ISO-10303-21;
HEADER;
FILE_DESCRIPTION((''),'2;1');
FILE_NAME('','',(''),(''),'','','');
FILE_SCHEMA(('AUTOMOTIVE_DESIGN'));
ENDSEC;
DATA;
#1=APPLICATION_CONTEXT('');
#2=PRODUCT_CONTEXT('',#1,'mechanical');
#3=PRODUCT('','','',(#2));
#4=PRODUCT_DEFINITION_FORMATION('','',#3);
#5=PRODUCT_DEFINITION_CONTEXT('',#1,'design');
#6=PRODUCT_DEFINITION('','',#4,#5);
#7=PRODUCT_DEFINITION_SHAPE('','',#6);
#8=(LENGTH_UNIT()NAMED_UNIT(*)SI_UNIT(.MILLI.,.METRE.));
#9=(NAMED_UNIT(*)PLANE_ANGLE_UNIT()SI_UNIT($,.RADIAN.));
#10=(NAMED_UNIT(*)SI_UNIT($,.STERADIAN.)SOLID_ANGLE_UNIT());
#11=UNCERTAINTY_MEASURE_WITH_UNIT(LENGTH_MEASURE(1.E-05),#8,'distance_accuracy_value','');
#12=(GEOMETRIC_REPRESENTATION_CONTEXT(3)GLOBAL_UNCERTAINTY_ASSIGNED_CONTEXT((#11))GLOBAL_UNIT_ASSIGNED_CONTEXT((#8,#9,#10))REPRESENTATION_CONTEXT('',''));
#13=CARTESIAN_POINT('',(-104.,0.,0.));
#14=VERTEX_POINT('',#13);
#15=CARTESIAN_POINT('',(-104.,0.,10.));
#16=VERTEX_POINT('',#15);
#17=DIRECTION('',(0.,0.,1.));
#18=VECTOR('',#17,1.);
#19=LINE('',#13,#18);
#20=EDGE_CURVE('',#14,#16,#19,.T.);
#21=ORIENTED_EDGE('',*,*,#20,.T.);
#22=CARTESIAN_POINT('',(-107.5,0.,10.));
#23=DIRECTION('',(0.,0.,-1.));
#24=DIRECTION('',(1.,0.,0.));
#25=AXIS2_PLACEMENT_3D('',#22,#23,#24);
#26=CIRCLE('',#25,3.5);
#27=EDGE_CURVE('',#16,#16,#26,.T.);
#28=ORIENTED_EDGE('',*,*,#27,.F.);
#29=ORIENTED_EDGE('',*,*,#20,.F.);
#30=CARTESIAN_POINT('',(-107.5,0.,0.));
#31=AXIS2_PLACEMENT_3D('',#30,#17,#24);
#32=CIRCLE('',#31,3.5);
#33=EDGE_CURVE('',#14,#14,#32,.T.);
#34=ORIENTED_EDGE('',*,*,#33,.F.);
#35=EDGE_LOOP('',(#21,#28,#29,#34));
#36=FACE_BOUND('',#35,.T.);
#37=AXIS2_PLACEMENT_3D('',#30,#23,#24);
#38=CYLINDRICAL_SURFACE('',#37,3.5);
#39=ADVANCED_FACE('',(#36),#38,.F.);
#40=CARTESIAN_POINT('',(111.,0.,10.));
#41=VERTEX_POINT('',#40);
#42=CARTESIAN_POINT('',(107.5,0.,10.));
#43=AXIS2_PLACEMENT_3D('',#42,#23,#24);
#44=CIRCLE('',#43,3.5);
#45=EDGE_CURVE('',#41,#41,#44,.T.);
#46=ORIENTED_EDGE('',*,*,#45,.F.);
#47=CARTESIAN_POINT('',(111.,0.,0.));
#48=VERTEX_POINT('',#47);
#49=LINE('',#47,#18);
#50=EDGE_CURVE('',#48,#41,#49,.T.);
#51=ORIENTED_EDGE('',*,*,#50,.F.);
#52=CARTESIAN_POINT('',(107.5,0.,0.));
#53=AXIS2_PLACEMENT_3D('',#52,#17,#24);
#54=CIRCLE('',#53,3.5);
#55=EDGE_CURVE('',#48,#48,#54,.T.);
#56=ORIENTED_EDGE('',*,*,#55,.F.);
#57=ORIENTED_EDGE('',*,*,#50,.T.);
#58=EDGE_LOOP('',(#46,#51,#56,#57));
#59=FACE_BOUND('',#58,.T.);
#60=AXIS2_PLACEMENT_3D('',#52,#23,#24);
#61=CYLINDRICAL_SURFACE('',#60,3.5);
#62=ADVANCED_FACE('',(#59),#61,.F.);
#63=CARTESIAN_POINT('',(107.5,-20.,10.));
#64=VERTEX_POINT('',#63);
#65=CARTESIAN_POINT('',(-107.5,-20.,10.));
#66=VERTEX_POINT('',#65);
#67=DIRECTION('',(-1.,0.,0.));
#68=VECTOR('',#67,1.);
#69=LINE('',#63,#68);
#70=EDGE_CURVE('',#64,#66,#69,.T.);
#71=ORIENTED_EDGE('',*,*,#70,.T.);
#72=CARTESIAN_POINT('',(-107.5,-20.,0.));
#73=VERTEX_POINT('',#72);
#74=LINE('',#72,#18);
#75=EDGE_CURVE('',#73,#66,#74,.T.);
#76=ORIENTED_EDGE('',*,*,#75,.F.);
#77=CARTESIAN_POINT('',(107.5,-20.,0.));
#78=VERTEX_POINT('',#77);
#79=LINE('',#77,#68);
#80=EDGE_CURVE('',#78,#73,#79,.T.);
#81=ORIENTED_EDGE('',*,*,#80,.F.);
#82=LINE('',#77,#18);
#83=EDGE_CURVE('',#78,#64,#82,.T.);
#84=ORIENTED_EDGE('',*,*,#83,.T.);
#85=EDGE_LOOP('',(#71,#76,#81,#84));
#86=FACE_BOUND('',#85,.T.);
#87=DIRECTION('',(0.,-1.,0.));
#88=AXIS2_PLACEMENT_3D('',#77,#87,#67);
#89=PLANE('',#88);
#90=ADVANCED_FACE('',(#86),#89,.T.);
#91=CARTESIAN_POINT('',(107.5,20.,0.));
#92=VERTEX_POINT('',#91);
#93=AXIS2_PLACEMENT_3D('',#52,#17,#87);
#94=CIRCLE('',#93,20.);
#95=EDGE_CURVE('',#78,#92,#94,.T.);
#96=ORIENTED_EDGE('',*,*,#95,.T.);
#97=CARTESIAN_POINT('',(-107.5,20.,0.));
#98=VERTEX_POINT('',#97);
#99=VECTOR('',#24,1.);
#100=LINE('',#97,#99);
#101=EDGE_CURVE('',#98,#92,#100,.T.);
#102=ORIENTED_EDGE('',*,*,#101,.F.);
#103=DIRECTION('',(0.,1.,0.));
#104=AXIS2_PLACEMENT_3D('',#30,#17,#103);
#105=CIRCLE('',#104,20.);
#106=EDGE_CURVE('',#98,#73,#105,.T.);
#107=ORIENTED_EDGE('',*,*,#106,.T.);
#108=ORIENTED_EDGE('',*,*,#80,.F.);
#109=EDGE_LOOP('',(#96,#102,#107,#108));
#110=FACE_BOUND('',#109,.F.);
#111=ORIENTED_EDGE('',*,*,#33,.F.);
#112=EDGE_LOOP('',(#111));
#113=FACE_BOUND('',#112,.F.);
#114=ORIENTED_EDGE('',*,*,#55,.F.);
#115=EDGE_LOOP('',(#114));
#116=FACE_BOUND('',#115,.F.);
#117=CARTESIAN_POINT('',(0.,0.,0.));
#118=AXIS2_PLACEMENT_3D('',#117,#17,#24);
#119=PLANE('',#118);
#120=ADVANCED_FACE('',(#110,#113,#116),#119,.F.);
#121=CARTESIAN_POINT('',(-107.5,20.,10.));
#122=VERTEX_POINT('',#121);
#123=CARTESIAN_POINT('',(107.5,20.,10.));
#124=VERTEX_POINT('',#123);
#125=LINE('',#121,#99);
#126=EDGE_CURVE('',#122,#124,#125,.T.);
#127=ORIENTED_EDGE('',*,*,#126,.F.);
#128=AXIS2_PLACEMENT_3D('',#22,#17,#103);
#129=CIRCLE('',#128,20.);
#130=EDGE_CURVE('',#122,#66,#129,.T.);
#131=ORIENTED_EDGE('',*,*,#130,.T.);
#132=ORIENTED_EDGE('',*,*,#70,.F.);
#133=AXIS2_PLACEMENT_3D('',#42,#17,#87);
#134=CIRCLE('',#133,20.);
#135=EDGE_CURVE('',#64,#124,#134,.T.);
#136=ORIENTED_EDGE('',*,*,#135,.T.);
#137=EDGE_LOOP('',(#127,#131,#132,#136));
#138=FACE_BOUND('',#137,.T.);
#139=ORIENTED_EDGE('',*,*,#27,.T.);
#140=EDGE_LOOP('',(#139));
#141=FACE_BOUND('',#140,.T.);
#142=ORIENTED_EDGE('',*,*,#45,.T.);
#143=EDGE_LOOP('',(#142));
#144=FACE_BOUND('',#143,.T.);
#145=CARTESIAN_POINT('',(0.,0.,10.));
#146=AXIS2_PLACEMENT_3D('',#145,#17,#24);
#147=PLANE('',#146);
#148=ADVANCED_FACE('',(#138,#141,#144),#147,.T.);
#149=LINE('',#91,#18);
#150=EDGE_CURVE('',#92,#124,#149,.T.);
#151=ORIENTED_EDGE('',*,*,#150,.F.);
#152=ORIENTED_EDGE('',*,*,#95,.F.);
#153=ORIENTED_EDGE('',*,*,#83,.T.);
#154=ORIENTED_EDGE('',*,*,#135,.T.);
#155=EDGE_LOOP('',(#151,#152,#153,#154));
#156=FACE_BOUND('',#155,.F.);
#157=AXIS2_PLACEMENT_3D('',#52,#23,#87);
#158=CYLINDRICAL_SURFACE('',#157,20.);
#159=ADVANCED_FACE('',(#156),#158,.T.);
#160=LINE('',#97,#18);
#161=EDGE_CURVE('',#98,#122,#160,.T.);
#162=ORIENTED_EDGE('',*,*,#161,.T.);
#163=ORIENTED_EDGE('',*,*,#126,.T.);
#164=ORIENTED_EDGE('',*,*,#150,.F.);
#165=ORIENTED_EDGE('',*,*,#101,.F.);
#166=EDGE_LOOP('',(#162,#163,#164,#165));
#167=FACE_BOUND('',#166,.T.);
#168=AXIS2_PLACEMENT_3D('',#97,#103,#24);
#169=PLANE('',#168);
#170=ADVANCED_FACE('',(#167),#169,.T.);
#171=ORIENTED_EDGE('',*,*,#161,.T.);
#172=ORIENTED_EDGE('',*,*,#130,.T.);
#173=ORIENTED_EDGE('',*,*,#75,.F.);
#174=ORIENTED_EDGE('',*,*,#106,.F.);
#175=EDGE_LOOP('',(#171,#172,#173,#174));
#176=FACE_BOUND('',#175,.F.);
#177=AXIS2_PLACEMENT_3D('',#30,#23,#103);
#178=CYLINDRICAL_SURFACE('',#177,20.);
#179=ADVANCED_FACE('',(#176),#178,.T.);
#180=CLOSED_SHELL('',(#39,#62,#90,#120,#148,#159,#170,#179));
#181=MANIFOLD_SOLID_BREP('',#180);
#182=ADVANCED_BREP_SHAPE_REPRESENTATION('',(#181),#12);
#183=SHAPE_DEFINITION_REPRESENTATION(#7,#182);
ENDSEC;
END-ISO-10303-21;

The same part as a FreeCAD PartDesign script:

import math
import FreeCAD as App
import Part
import Sketcher
from FreeCAD import Vector
Q = App.Units.Quantity

doc = App.newDocument("Part")
params = doc.addObject("Spreadsheet::Sheet", "Params")
for row, (alias, value) in enumerate([
    ("sketch1_diameter", "7 mm"),
    ("sketch1_radius", "20 mm"),
    ("sketch1_width", "215 mm"),
    ("pad1_length", "10 mm"),
], start=1):
    params.set(f"A{row}", alias)
    params.set(f"B{row}", "=" + value)
    params.setAlias(f"B{row}", alias)

body = doc.addObject("PartDesign::Body", "Body")

# Sketch on XY plane
sketch1 = body.newObject("Sketcher::SketchObject", "Sketch")
sketch1.AttachmentSupport = (doc.getObject("XY_Plane"), [""])
sketch1.MapMode = "FlatFace"
sketch1.addGeometry([
    Part.LineSegment(Vector(-107.5, -20, 0), Vector(107.5, -20, 0)),  # 0
    Part.ArcOfCircle(Part.Circle(Vector(107.5, 0, 0), Vector(0, 0, 1), 20), math.radians(-90), math.radians(90)),  # 1
    Part.LineSegment(Vector(107.5, 20, 0), Vector(-107.5, 20, 0)),  # 2
    Part.ArcOfCircle(Part.Circle(Vector(-107.5, 0, 0), Vector(0, 0, 1), 20), math.radians(90), math.radians(270)),  # 3
    Part.Circle(Vector(-107.5, 0, 0), Vector(0, 0, 1), 3.5),  # 4
    Part.Circle(Vector(107.5, 0, 0), Vector(0, 0, 1), 3.5),  # 5
], False)
sketch1.addConstraint([
    Sketcher.Constraint("Tangent", 0, 2, 1, 1),
    Sketcher.Constraint("Tangent", 1, 2, 2, 1),
    Sketcher.Constraint("Tangent", 2, 2, 3, 1),
    Sketcher.Constraint("Tangent", 3, 2, 0, 1),
    Sketcher.Constraint("Horizontal", 0),
    Sketcher.Constraint("Horizontal", 2),
    Sketcher.Constraint("Coincident", 4, 3, 3, 3),
    Sketcher.Constraint("Coincident", 5, 3, 1, 3),
    Sketcher.Constraint("Equal", 4, 5),
    Sketcher.Constraint("Symmetric", 1, 3, 3, 3, -1, 1),
    Sketcher.Constraint("Diameter", 4, Q("7 mm")),
    Sketcher.Constraint("Radius", 1, Q("20 mm")),
    Sketcher.Constraint("DistanceX", 0, 1, 0, 2, Q("215 mm")),
])
sketch1.setExpression("Constraints[10]", "Params.sketch1_diameter")
sketch1.setExpression("Constraints[11]", "Params.sketch1_radius")
sketch1.setExpression("Constraints[12]", "Params.sketch1_width")
pad1 = body.newObject("PartDesign::Pad", "Pad")
pad1.Profile = sketch1
pad1.setExpression("Length", "Params.pad1_length")

doc.recompute()
